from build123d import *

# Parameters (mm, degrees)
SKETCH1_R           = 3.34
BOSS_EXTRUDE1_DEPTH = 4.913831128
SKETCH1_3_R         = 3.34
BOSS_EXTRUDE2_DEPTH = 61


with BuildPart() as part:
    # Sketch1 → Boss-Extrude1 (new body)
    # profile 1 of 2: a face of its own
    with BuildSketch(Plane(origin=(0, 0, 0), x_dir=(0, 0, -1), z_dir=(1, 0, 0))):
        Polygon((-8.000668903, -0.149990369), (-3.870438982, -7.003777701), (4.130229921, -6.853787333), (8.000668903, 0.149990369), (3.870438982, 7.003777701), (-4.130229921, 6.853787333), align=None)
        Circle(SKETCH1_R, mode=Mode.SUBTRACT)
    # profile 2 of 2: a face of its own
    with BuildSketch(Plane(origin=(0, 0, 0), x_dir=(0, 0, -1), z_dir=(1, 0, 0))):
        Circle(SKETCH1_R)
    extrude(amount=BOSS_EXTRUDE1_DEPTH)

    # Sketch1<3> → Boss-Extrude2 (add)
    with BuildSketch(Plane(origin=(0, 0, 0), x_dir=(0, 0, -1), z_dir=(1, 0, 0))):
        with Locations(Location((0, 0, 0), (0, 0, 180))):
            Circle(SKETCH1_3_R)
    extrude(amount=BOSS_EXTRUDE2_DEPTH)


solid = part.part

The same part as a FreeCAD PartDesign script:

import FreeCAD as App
import Part
import Sketcher


def add_polygon(sketch, points):
    """Adds a closed chain of lines whose ends are joined by coincident constraints."""
    first, n = sketch.GeometryCount, len(points)
    for a, b in zip(points, points[1:] + points[:1]):
        sketch.addGeometry(Part.LineSegment(App.Vector(*a, 0), App.Vector(*b, 0)), False)
    for i in range(n):
        sketch.addConstraint(Sketcher.Constraint("Coincident", first + i, 2, first + (i + 1) % n, 1))

doc = App.newDocument("Part")
body = doc.addObject("PartDesign::Body", "Body")

sketch1 = doc.addObject("Sketcher::SketchObject", "Sketch")
body.addObject(sketch1)
sketch1.AttachmentSupport = (doc.YZ_Plane, [""])
sketch1.MapMode = "FlatFace"
add_polygon(sketch1, [(0, 8), (-7, 4), (-7, -4), (0, -8), (7, -4), (7, 4)])
sketch1.addConstraint(Sketcher.Constraint("Symmetric", 0, 2, 3, 2, -1, 1))
sketch1.addConstraint(Sketcher.Constraint("Symmetric", 1, 2, 4, 2, -1, 1))
sketch1.addConstraint(Sketcher.Constraint("Symmetric", 2, 2, 5, 2, -1, 1))
sketch1.addConstraint(Sketcher.Constraint("Equal", 0, 1))
sketch1.addConstraint(Sketcher.Constraint("Equal", 1, 2))
sketch1.addConstraint(Sketcher.Constraint("DistanceY", 2, 2, 4, 2, 12.130899))
sketch1.addConstraint(Sketcher.Constraint("DistanceY", -1, 1, 0, 2, 3.870439))
sketch1.addConstraint(Sketcher.Constraint("DistanceY", 1, 2, -1, 1, 4.13023))
sketch1.addConstraint(Sketcher.Constraint("DistanceX", -1, 1, 2, 2, 0.14999))
pad1 = doc.addObject("PartDesign::Pad", "Pad")
body.addObject(pad1)
pad1.Profile = sketch1
pad1.Length = 4.913831

sketch2 = doc.addObject("Sketcher::SketchObject", "Sketch001")
body.addObject(sketch2)
sketch2.AttachmentSupport = (doc.YZ_Plane, [""])
sketch2.MapMode = "FlatFace"
sketch2.addGeometry(Part.Circle(App.Vector(0, 0, 0), App.Vector(0, 0, 1), 3.3), False)
sketch2.addConstraint(Sketcher.Constraint("Coincident", 0, 3, -1, 1))
sketch2.addConstraint(Sketcher.Constraint("Diameter", 0, 6.68))
pad2 = doc.addObject("PartDesign::Pad", "Pad001")
body.addObject(pad2)
pad2.Profile = sketch2
pad2.Length = 61

doc.recompute()
